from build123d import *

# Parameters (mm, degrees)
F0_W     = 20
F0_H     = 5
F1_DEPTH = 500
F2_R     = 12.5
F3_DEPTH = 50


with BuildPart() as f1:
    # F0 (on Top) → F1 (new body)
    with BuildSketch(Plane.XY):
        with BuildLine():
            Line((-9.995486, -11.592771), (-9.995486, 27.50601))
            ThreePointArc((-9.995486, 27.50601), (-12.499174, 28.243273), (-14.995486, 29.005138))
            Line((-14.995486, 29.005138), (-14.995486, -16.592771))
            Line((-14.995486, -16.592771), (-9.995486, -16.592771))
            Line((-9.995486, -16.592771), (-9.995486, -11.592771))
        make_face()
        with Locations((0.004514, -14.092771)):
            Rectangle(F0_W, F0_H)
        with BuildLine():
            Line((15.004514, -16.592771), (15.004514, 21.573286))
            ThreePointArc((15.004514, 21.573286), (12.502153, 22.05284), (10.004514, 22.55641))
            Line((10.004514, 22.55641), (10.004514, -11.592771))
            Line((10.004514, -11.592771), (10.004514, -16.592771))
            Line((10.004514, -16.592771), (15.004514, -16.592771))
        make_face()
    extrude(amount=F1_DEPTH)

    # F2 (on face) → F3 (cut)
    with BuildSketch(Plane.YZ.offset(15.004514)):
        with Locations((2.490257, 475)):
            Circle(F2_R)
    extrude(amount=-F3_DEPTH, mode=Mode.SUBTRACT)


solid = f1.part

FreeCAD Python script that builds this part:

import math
import FreeCAD as App
import Part
import Sketcher
from FreeCAD import Vector
Q = App.Units.Quantity

doc = App.newDocument("Part")
body = doc.addObject("PartDesign::Body", "Body")

sketch1 = doc.addObject("Sketcher::SketchObject", "Sketch")
body.addObject(sketch1)
sketch1.AttachmentSupport = (doc.XY_Plane, [""])
sketch1.MapMode = "FlatFace"
sketch1.addGeometry(Part.ArcOfCircle(Part.Circle(Vector(64, 282, 0), Vector(0, 0, 1), 265), math.radians(-107.25), math.radians(-106.13)), False)
sketch1.addGeometry(Part.LineSegment(Vector(-15, 29, 0), Vector(-15, -17, 0)), False)
sketch1.addGeometry(Part.LineSegment(Vector(-15, -17, 0), Vector(15, -17, 0)), False)
sketch1.addGeometry(Part.LineSegment(Vector(15, -17, 0), Vector(15, 22, 0)), False)
sketch1.addGeometry(Part.ArcOfCircle(Part.Circle(Vector(64, 282, 0), Vector(0, 0, 1), 265), math.radians(-101.67), math.radians(-100.57)), False)
sketch1.addGeometry(Part.LineSegment(Vector(10, 23, 0), Vector(10, -12, 0)), False)
sketch1.addGeometry(Part.LineSegment(Vector(10, -12, 0), Vector(-10, -12, 0)), False)
sketch1.addGeometry(Part.LineSegment(Vector(-10, -12, 0), Vector(-10, 28, 0)), False)
sketch1.addConstraint(Sketcher.Constraint("Coincident", 0, 1, 1, 1))
sketch1.addConstraint(Sketcher.Constraint("Coincident", 1, 2, 2, 1))
sketch1.addConstraint(Sketcher.Constraint("Coincident", 2, 2, 3, 1))
sketch1.addConstraint(Sketcher.Constraint("Coincident", 3, 2, 4, 2))
sketch1.addConstraint(Sketcher.Constraint("Coincident", 4, 1, 5, 1))
sketch1.addConstraint(Sketcher.Constraint("Coincident", 5, 2, 6, 1))
sketch1.addConstraint(Sketcher.Constraint("Coincident", 6, 2, 7, 1))
sketch1.addConstraint(Sketcher.Constraint("Coincident", 7, 2, 0, 2))
sketch1.addConstraint(Sketcher.Constraint("Vertical", 1))
sketch1.addConstraint(Sketcher.Constraint("Horizontal", 2))
sketch1.addConstraint(Sketcher.Constraint("Vertical", 3))
sketch1.addConstraint(Sketcher.Constraint("Vertical", 5))
sketch1.addConstraint(Sketcher.Constraint("Horizontal", 6))
sketch1.addConstraint(Sketcher.Constraint("Vertical", 7))
sketch1.addConstraint(Sketcher.Constraint("DistanceX", 2, 1, 2, 2, Q("30 mm")))
sketch1.addConstraint(Sketcher.Constraint("DistanceX", 6, 2, 6, 1, Q("20 mm")))
sketch1.addConstraint(Sketcher.Constraint("DistanceX", 4, 1, 3, 2, Q("5 mm")))
sketch1.addConstraint(Sketcher.Constraint("DistanceY", 2, 2, 5, 2, Q("5 mm")))
sketch1.addConstraint(Sketcher.Constraint("Radius", 4, Q("265.232551 mm")))
sketch1.addConstraint(Sketcher.Constraint("Radius", 0, Q("265.224737 mm")))
sketch1.addConstraint(Sketcher.Constraint("DistanceY", 1, 2, 1, 1, Q("45.597909 mm")))
sketch1.addConstraint(Sketcher.Constraint("DistanceY", 5, 2, 5, 1, Q("34.149181 mm")))
sketch1.addConstraint(Sketcher.Constraint("DistanceY", 7, 1, 7, 2, Q("39.098781 mm")))
sketch1.addConstraint(Sketcher.Constraint("DistanceY", 3, 1, 3, 2, Q("38.166057 mm")))
sketch1.addConstraint(Sketcher.Constraint("DistanceY", -1, 1, 0, 3, Q("282.294689 mm")))
sketch1.addConstraint(Sketcher.Constraint("DistanceX", -1, 1, 4, 3, Q("63.673652 mm")))
pad1 = doc.addObject("PartDesign::Pad", "Pad")
body.addObject(pad1)
pad1.Profile = sketch1
pad1.Length = 500

sketch2 = doc.addObject("Sketcher::SketchObject", "Sketch001")
body.addObject(sketch2)
sketch2.AttachmentSupport = (doc.YZ_Plane, [""])
sketch2.MapMode = "FlatFace"
sketch2.AttachmentOffset = App.Placement(Vector(0, 0, 15.004514), App.Rotation())
sketch2.addGeometry(Part.Circle(Vector(2, 475, 0), Vector(0, 0, 1), 12), False)
sketch2.addConstraint(Sketcher.Constraint("Diameter", 0, Q("25 mm")))
sketch2.addConstraint(Sketcher.Constraint("DistanceY", -1, 1, 0, 3, Q("475 mm")))
sketch2.addConstraint(Sketcher.Constraint("DistanceX", -1, 1, 0, 3, Q("2.490257 mm")))
pocket1 = doc.addObject("PartDesign::Pocket", "Pocket")
body.addObject(pocket1)
pocket1.Profile = sketch2
pocket1.Length = 50

doc.recompute()
